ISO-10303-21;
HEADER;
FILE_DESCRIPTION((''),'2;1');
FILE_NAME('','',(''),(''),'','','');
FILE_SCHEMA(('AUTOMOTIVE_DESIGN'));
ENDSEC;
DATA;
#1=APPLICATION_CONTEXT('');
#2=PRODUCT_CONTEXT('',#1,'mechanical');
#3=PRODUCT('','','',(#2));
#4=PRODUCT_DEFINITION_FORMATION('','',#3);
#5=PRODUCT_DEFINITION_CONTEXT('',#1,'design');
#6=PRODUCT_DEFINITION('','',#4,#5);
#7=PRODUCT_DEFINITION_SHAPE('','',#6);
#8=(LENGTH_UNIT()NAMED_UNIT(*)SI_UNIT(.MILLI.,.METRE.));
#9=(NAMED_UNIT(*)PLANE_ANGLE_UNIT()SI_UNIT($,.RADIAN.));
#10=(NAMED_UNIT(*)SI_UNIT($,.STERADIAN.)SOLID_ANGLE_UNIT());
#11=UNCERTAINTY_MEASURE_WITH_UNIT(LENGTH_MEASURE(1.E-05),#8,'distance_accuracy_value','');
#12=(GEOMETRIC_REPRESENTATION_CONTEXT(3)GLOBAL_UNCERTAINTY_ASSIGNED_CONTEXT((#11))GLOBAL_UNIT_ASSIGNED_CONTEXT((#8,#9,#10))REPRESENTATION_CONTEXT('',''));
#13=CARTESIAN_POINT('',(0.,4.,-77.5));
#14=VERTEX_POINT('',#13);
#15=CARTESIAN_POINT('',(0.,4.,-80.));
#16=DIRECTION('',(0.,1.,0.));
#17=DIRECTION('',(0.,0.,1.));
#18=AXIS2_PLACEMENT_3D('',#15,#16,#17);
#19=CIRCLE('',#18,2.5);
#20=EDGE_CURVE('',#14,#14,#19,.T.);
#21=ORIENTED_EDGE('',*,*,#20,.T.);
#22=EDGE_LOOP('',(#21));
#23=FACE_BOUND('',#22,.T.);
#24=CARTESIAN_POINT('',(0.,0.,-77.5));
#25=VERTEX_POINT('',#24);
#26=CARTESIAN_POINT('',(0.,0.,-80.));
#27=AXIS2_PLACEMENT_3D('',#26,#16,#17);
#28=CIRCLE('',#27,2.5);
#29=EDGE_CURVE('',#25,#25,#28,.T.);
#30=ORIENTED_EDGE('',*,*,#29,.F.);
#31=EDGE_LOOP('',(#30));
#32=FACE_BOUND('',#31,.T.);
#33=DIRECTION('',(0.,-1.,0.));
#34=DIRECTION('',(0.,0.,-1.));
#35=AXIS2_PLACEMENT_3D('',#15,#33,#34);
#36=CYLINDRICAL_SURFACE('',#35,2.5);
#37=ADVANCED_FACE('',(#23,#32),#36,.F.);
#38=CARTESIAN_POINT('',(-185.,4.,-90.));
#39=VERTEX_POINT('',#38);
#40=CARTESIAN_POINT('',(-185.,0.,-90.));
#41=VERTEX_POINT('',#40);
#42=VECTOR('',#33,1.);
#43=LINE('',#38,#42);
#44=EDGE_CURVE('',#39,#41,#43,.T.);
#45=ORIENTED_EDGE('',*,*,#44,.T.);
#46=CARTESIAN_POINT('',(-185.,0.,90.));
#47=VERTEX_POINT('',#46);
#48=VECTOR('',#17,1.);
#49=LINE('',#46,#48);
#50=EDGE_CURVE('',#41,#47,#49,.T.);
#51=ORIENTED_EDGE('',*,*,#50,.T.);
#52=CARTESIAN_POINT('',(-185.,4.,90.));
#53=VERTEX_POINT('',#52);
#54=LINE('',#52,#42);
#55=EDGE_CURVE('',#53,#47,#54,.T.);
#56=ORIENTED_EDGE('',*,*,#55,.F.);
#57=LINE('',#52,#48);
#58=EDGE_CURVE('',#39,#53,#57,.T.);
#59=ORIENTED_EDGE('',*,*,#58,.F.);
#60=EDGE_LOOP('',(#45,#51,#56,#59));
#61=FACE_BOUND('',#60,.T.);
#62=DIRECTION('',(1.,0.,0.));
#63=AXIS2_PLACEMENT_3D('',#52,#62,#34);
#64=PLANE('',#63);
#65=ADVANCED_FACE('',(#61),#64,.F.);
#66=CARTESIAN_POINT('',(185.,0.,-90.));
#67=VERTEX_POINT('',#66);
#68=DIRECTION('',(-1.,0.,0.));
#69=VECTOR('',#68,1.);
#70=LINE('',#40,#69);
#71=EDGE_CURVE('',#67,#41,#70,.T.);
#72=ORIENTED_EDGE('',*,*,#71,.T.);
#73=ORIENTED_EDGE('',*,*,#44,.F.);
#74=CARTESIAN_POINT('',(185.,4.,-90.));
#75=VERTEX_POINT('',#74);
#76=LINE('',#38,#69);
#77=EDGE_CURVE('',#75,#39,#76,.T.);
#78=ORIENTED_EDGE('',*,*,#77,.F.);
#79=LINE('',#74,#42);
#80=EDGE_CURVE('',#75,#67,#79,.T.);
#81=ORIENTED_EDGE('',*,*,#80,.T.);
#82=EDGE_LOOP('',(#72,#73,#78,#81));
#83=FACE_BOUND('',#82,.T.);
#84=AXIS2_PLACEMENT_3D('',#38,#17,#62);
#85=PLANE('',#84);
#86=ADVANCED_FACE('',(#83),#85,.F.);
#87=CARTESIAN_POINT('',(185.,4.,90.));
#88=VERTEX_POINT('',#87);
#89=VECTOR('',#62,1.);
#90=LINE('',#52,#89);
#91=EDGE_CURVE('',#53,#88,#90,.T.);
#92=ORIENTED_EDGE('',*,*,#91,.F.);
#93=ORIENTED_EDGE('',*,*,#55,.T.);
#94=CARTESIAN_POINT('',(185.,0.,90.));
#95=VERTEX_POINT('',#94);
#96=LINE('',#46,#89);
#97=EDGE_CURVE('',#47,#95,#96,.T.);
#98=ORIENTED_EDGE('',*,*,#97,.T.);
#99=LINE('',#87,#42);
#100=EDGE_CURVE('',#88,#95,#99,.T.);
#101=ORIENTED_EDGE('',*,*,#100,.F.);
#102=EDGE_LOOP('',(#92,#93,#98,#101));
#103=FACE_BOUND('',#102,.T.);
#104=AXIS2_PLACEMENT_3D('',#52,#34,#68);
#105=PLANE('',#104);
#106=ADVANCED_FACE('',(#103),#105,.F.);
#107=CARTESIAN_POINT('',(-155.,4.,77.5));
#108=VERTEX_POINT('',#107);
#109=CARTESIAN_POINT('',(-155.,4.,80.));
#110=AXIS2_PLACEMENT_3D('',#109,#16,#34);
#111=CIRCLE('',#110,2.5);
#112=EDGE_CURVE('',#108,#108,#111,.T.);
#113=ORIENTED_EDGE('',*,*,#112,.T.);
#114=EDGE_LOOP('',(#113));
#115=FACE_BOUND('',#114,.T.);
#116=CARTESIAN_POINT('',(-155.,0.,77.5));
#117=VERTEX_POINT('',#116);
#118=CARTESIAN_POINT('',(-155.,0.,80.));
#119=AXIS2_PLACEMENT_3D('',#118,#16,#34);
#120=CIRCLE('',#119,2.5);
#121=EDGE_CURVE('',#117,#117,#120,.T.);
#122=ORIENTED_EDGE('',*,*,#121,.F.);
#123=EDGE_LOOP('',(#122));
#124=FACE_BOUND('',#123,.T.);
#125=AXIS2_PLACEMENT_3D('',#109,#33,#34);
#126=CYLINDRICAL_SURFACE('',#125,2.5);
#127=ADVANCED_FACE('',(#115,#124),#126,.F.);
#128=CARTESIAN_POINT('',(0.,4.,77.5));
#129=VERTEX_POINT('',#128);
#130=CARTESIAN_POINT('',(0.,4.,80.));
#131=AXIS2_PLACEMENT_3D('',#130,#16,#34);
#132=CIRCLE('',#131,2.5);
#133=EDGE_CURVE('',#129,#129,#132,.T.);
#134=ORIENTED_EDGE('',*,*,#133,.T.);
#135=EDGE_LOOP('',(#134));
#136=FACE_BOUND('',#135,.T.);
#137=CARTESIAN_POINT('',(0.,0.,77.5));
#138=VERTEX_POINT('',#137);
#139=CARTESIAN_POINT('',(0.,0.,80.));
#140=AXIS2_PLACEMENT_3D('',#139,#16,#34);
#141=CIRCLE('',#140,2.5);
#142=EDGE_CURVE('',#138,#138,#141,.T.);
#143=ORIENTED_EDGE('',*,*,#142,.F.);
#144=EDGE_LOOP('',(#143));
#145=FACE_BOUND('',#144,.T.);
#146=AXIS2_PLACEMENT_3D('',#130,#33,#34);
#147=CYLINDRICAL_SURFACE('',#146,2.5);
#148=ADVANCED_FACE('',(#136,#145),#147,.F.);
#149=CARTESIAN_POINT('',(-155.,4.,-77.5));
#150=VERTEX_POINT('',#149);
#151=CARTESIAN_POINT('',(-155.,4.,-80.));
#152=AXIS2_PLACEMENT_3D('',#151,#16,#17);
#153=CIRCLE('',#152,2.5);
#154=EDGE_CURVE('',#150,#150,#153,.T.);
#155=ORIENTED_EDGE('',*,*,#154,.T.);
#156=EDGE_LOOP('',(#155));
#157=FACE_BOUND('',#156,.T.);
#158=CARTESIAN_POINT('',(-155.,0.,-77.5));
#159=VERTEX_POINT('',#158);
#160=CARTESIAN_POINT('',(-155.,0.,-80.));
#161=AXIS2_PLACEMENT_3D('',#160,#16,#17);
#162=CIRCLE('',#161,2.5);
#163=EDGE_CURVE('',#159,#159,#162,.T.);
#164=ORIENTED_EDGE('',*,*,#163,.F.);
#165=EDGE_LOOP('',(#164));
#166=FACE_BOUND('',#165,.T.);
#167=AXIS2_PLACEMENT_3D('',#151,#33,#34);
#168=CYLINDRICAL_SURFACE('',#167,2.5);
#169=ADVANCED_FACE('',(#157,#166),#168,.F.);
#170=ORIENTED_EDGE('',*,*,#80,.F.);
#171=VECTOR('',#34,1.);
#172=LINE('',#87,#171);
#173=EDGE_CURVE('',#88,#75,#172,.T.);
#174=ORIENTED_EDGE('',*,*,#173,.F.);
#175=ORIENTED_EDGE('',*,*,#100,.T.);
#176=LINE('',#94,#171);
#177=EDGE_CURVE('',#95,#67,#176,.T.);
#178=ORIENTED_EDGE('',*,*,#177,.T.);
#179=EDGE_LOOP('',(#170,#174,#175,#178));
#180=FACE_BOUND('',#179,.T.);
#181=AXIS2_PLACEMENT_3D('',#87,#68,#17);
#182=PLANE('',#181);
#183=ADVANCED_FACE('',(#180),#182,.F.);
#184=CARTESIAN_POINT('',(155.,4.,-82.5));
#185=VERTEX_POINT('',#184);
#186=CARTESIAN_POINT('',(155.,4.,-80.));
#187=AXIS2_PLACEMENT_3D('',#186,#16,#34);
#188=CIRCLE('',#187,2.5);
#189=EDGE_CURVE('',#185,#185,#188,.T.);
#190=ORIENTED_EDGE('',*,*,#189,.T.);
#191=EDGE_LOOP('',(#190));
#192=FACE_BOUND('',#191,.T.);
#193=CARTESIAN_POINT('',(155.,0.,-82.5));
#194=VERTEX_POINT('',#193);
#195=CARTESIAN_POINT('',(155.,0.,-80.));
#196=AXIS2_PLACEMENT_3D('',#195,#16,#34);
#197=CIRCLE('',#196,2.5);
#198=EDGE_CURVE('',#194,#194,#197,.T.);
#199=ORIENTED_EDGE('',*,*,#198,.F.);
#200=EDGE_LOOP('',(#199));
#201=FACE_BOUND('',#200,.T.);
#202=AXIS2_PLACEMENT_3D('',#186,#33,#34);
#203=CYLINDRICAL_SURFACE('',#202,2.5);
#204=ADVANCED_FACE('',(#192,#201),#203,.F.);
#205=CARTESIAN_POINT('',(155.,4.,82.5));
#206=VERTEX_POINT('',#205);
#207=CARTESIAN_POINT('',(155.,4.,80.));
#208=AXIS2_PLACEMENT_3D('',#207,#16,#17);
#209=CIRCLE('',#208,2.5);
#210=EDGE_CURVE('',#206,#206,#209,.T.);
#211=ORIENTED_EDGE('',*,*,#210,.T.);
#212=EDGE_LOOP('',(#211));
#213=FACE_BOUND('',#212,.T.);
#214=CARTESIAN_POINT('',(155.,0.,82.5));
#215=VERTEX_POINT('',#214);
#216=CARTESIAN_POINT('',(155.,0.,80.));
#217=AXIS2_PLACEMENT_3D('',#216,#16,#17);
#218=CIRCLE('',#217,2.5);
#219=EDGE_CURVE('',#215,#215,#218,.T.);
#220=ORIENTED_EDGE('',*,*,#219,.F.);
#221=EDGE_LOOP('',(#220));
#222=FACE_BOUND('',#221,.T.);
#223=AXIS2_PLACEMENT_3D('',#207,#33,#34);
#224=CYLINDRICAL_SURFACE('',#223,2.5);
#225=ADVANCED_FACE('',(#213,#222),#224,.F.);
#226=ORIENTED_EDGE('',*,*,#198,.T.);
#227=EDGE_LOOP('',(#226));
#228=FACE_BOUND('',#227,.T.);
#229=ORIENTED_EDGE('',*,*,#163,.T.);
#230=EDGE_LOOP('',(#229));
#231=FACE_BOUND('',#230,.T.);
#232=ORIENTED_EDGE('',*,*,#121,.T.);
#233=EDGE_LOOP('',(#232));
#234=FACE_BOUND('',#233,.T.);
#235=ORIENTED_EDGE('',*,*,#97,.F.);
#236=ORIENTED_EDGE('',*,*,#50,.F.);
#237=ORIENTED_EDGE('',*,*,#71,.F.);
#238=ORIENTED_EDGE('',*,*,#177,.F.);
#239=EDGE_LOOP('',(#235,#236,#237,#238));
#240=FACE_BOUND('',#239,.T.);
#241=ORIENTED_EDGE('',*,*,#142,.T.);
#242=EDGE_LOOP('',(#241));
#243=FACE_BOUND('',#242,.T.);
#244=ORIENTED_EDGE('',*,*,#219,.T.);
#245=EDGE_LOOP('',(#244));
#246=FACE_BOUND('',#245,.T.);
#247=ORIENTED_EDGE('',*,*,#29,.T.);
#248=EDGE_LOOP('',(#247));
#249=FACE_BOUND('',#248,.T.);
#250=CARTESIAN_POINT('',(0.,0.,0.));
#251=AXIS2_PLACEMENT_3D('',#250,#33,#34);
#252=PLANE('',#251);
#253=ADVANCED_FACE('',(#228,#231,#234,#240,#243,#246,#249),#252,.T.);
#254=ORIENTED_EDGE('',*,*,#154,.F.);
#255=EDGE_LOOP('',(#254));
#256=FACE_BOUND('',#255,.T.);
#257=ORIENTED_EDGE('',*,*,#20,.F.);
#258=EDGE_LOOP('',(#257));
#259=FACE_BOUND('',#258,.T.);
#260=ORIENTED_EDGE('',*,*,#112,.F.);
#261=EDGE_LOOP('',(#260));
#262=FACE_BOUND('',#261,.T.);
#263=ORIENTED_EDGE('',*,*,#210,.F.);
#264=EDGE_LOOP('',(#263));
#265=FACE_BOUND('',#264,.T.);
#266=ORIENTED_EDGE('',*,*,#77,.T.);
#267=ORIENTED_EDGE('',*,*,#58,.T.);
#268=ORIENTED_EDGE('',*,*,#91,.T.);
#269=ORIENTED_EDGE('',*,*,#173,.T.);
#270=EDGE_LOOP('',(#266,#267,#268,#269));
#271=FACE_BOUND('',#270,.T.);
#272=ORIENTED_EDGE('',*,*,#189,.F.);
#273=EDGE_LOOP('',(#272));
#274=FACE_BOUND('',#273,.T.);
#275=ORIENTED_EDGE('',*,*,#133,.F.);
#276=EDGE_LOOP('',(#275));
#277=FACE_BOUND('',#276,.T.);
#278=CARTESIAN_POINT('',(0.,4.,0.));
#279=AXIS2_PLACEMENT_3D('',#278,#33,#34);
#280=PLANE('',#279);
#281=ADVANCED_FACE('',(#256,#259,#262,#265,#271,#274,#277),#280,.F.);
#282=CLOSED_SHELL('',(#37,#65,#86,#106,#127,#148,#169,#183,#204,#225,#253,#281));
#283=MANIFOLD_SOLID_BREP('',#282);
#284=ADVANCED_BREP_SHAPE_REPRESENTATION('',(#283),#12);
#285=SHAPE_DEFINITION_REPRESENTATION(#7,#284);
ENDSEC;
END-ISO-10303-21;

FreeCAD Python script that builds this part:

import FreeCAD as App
import Part
import Sketcher

V = App.Vector
Q = App.Units.Quantity

doc = App.newDocument("Part")
params = doc.addObject("Spreadsheet::Sheet", "Params")
for row, (alias, value) in enumerate([
    ("sketch1_diameter", "5 mm"),
    ("sketch1_width", "370 mm"),
    ("sketch1_height", "180 mm"),
    ("pad1_length", "4 mm"),
], start=1):
    params.set(f"A{row}", alias)
    params.set(f"B{row}", "=" + value)
    params.setAlias(f"B{row}", alias)

body = doc.addObject("PartDesign::Body", "Body")

# Sketch on XZ plane
sketch1 = doc.addObject("Sketcher::SketchObject", "Sketch")
body.addObject(sketch1)
sketch1.AttachmentSupport = (doc.XZ_Plane, [""])
sketch1.MapMode = "FlatFace"
sketch1.addGeometry([
    Part.LineSegment(V(-185, -90, 0), V(-185, 90, 0)),  # 0
    Part.LineSegment(V(-185, 90, 0), V(185, 90, 0)),  # 1
    Part.LineSegment(V(185, 90, 0), V(185, -90, 0)),  # 2
    Part.LineSegment(V(185, -90, 0), V(-185, -90, 0)),  # 3
    Part.Circle(V(-155, 80, 0), V(0, 0, 1), 2.5),  # 4
    Part.Circle(V(0, 80, 0), V(0, 0, 1), 2.5),  # 5
    Part.Circle(V(155, 80, 0), V(0, 0, 1), 2.5),  # 6
    Part.Circle(V(-155, -80, 0), V(0, 0, 1), 2.5),  # 7
    Part.Circle(V(0, -80, 0), V(0, 0, 1), 2.5),  # 8
    Part.Circle(V(155, -80, 0), V(0, 0, 1), 2.5),  # 9
], False)
sketch1.addConstraint([
    Sketcher.Constraint("Coincident", 0, 2, 1, 1),
    Sketcher.Constraint("Coincident", 1, 2, 2, 1),
    Sketcher.Constraint("Coincident", 2, 2, 3, 1),
    Sketcher.Constraint("Coincident", 3, 2, 0, 1),
    Sketcher.Constraint("Vertical", 0),
    Sketcher.Constraint("Horizontal", 1),
    Sketcher.Constraint("Vertical", 2),
    Sketcher.Constraint("Horizontal", 3),
    Sketcher.Constraint("Equal", 4, 5),
    Sketcher.Constraint("Equal", 5, 6),
    Sketcher.Constraint("Equal", 6, 7),
    Sketcher.Constraint("Equal", 7, 8),
    Sketcher.Constraint("Equal", 8, 9),
    Sketcher.Constraint("Symmetric", 6, 3, 7, 3, -1, 1),
    Sketcher.Constraint("Symmetric", 5, 3, 8, 3, -1, 1),
    Sketcher.Constraint("Symmetric", 4, 3, 9, 3, -1, 1),
    Sketcher.Constraint("Symmetric", 0, 2, 2, 2, -1, 1),
    Sketcher.Constraint("Symmetric", 4, 3, 6, 3, -2),
    Sketcher.Constraint("PointOnObject", 5, 3, -2),
    Sketcher.Constraint("Horizontal", 4, 3, 5, 3),
    Sketcher.Constraint("Diameter", 4, Q("5 mm")),
    Sketcher.Constraint("DistanceX", 1, 1, 1, 2, Q("370 mm")),
    Sketcher.Constraint("DistanceY", 0, 1, 0, 2, Q("180 mm")),
    Sketcher.Constraint("DistanceX", 4, 3, -1, 1, Q("155 mm")),
    Sketcher.Constraint("DistanceY", -1, 1, 4, 3, Q("80 mm")),
])
sketch1.setExpression("Constraints[20]", "Params.sketch1_diameter")
sketch1.setExpression("Constraints[21]", "Params.sketch1_width")
sketch1.setExpression("Constraints[22]", "Params.sketch1_height")
pad1 = doc.addObject("PartDesign::Pad", "Pad")
body.addObject(pad1)
pad1.Profile = sketch1
pad1.setExpression("Length", "Params.pad1_length")
pad1.Reversed = True

doc.recompute()
